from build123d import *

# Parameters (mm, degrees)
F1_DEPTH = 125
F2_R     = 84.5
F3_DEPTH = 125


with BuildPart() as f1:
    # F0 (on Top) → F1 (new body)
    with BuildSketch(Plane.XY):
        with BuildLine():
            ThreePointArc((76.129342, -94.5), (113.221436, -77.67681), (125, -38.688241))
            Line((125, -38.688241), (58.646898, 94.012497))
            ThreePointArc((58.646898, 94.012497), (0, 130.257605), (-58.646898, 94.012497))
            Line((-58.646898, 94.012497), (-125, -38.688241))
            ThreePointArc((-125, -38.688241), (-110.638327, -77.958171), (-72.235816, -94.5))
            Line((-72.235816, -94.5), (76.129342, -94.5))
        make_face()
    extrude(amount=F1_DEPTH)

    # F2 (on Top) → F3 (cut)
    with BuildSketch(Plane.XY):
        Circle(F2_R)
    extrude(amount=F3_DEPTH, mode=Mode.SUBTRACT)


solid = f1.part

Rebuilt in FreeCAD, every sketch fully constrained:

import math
import FreeCAD as App
import Part
import Sketcher

doc = App.newDocument("Part")
body = doc.addObject("PartDesign::Body", "Body")

# Sketch on XY plane
sketch1 = body.newObject("Sketcher::SketchObject", "Sketch")
sketch1.AttachmentSupport = (doc.getObject("XY_Plane"), [""])
sketch1.MapMode = "FlatFace"
sketch1.addGeometry([
    Part.ArcOfCircle(Part.Circle(App.Vector(76, -45, 0), App.Vector(0, 0, 1), 49), math.radians(-90), math.radians(8)),  # 0
    Part.LineSegment(App.Vector(125, -39, 0), App.Vector(59, 94, 0)),  # 1
    Part.ArcOfCircle(Part.Circle(App.Vector(0, 65, 0), App.Vector(0, 0, 1), 66), math.radians(27), math.radians(153)),  # 2
    Part.LineSegment(App.Vector(-59, 94, 0), App.Vector(-125, -39, 0)),  # 3
    Part.ArcOfCircle(Part.Circle(App.Vector(-72, -42, 0), App.Vector(0, 0, 1), 53), math.radians(177), math.radians(270)),  # 4
    Part.LineSegment(App.Vector(-72, -94, 0), App.Vector(76, -94, 0)),  # 5
], False)
sketch1.addConstraint([
    Sketcher.Constraint("Coincident", 0, 2, 1, 1),
    Sketcher.Constraint("Tangent", 1, 2, 2, 1),
    Sketcher.Constraint("Tangent", 2, 2, 3, 1),
    Sketcher.Constraint("Coincident", 3, 2, 4, 1),
    Sketcher.Constraint("Tangent", 4, 2, 5, 1),
    Sketcher.Constraint("Tangent", 5, 2, 0, 1),
    Sketcher.Constraint("Horizontal", 5),
    Sketcher.Constraint("Symmetric", 1, 2, 2, 2, -2),
    Sketcher.Constraint("Horizontal", 0, 2, 3, 2),
    Sketcher.Constraint("DistanceX", -1, 1, 0, 2, 125.0),
    Sketcher.Constraint("DistanceY", 4, 2, -1, 1, 94.5),
    Sketcher.Constraint("Radius", 4, 52.84739),
    Sketcher.Constraint("Radius", 0, 49.302278),
    Sketcher.Constraint("Radius", 2, 65.569766),
    Sketcher.Constraint("DistanceX", 5, 1, 5, 2, 148.365158),
    Sketcher.Constraint("DistanceX", 3, 2, 1, 2, 183.646898),
])
pad1 = body.newObject("PartDesign::Pad", "Pad")
pad1.Profile = sketch1
pad1.Length = 125

# Sketch on XY plane
sketch2 = body.newObject("Sketcher::SketchObject", "Sketch001")
sketch2.AttachmentSupport = (doc.getObject("XY_Plane"), [""])
sketch2.MapMode = "FlatFace"
sketch2.addGeometry(Part.Circle(App.Vector(0, 0, 0), App.Vector(0, 0, 1), 84), False)
sketch2.addConstraint([
    Sketcher.Constraint("Coincident", 0, 3, -1, 1),
    Sketcher.Constraint("Diameter", 0, 169.0),
])
pocket1 = body.newObject("PartDesign::Pocket", "Pocket")
pocket1.Profile = sketch2
pocket1.Length = 125
pocket1.Reversed = True

doc.recompute()
